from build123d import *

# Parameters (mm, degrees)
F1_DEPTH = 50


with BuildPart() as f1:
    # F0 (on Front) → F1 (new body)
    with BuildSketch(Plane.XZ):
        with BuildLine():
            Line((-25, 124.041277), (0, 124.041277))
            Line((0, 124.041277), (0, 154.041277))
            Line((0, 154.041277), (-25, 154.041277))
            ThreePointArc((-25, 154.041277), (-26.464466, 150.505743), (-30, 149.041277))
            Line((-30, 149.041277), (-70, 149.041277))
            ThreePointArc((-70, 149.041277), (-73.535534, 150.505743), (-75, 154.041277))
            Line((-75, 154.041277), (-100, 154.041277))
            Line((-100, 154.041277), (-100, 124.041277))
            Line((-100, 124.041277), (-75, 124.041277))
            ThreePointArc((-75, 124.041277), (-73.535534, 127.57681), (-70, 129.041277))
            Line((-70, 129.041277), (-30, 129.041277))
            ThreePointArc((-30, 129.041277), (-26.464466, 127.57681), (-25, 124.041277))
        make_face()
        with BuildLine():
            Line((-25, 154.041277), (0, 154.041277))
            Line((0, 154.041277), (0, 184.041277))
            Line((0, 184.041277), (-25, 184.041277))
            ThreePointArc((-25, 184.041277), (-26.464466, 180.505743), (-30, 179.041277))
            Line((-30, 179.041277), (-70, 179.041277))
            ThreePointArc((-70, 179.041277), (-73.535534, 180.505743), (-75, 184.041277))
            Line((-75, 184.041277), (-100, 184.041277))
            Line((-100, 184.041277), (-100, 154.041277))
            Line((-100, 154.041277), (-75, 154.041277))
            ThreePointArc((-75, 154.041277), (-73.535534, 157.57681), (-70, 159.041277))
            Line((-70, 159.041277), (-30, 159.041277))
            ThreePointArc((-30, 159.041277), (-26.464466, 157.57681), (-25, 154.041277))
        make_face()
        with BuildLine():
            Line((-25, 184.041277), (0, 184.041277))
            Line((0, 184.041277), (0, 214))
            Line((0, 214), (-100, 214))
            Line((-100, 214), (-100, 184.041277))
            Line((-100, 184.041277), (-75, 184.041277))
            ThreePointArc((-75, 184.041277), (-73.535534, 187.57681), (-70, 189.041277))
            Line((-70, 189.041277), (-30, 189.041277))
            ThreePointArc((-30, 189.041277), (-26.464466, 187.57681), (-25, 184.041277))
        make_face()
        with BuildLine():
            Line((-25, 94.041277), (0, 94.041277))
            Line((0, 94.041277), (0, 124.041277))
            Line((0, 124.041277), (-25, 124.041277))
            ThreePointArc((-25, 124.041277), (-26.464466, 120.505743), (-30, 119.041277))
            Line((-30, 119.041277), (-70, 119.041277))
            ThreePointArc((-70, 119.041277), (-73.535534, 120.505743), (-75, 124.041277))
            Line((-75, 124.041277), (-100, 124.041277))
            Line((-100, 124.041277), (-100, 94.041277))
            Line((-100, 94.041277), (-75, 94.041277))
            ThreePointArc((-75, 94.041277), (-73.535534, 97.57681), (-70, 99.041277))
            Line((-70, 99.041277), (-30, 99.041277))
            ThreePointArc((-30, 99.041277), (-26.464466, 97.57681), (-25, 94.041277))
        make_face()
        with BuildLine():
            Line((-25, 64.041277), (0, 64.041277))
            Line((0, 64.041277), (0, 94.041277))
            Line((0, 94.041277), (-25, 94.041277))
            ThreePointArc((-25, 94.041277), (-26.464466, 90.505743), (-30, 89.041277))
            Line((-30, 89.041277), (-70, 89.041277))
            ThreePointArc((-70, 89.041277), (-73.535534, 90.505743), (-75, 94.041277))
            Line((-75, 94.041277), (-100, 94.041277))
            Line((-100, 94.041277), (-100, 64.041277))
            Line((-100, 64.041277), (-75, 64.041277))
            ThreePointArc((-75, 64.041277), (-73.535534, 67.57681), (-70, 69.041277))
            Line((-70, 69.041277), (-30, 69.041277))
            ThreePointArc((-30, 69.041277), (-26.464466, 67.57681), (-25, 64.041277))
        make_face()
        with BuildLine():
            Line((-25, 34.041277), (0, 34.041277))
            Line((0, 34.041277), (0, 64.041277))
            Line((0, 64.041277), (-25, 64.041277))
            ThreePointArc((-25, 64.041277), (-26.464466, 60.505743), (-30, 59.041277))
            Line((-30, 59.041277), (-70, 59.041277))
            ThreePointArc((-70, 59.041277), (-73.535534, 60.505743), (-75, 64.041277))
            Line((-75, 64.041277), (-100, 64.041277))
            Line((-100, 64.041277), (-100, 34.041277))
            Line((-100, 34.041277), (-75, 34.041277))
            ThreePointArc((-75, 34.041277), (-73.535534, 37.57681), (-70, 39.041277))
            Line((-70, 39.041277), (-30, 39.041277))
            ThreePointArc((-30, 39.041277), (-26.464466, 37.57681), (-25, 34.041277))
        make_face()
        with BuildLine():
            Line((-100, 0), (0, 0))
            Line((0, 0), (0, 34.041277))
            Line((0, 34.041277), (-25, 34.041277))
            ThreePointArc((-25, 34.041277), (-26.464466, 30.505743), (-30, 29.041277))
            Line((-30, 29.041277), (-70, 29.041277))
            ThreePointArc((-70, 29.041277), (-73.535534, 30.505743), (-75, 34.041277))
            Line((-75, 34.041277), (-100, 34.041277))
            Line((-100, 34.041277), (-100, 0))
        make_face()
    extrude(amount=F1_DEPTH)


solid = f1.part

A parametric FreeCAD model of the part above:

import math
import FreeCAD as App
import Part
import Sketcher

V = App.Vector


def add_polygon(sketch, points):
    """Adds a closed chain of lines whose ends are joined by coincident constraints."""
    first, n = sketch.GeometryCount, len(points)
    for a, b in zip(points, points[1:] + points[:1]):
        sketch.addGeometry(Part.LineSegment(App.Vector(*a, 0), App.Vector(*b, 0)), False)
    for i in range(n):
        sketch.addConstraint(Sketcher.Constraint("Coincident", first + i, 2, first + (i + 1) % n, 1))

doc = App.newDocument("Part")
body = doc.addObject("PartDesign::Body", "Body")

# Sketch on XZ plane
sketch1 = body.newObject("Sketcher::SketchObject", "Sketch")
sketch1.AttachmentSupport = (doc.getObject("XZ_Plane"), [""])
sketch1.MapMode = "FlatFace"
add_polygon(sketch1, [(0, 214), (-100, 214), (-100, 0), (0, 0)])  # lines 0-3
sketch1.addGeometry(Part.ArcOfCircle(Part.Circle(V(-70, 34, 0), V(0, 0, 1), 5), math.radians(90), math.radians(180)), False)  # 4
sketch1.addGeometry(Part.LineSegment(V(-70, 39, 0), V(-30, 39, 0)), False)  # 5
sketch1.addGeometry(Part.ArcOfCircle(Part.Circle(V(-30, 34, 0), V(0, 0, 1), 5), math.radians(0), math.radians(90)), False)  # 6
sketch1.addGeometry(Part.ArcOfCircle(Part.Circle(V(-30, 34, 0), V(0, 0, 1), 5), math.radians(-90), math.radians(0)), False)  # 7
sketch1.addGeometry(Part.LineSegment(V(-30, 29, 0), V(-70, 29, 0)), False)  # 8
sketch1.addGeometry(Part.ArcOfCircle(Part.Circle(V(-70, 34, 0), V(0, 0, 1), 5), math.radians(180), math.radians(270)), False)  # 9
sketch1.addGeometry(Part.ArcOfCircle(Part.Circle(V(-70, 64, 0), V(0, 0, 1), 5), math.radians(90), math.radians(180)), False)  # 10
sketch1.addGeometry(Part.LineSegment(V(-70, 69, 0), V(-30, 69, 0)), False)  # 11
sketch1.addGeometry(Part.ArcOfCircle(Part.Circle(V(-30, 64, 0), V(0, 0, 1), 5), math.radians(0), math.radians(90)), False)  # 12
sketch1.addGeometry(Part.ArcOfCircle(Part.Circle(V(-30, 64, 0), V(0, 0, 1), 5), math.radians(-90), math.radians(0)), False)  # 13
sketch1.addGeometry(Part.LineSegment(V(-30, 59, 0), V(-70, 59, 0)), False)  # 14
sketch1.addGeometry(Part.ArcOfCircle(Part.Circle(V(-70, 64, 0), V(0, 0, 1), 5), math.radians(180), math.radians(270)), False)  # 15
sketch1.addGeometry(Part.ArcOfCircle(Part.Circle(V(-70, 94, 0), V(0, 0, 1), 5), math.radians(90), math.radians(180)), False)  # 16
sketch1.addGeometry(Part.LineSegment(V(-70, 99, 0), V(-30, 99, 0)), False)  # 17
sketch1.addGeometry(Part.ArcOfCircle(Part.Circle(V(-30, 94, 0), V(0, 0, 1), 5), math.radians(0), math.radians(90)), False)  # 18
sketch1.addGeometry(Part.ArcOfCircle(Part.Circle(V(-30, 94, 0), V(0, 0, 1), 5), math.radians(-90), math.radians(0)), False)  # 19
sketch1.addGeometry(Part.LineSegment(V(-30, 89, 0), V(-70, 89, 0)), False)  # 20
sketch1.addGeometry(Part.ArcOfCircle(Part.Circle(V(-70, 94, 0), V(0, 0, 1), 5), math.radians(180), math.radians(270)), False)  # 21
sketch1.addGeometry(Part.ArcOfCircle(Part.Circle(V(-70, 124, 0), V(0, 0, 1), 5), math.radians(90), math.radians(180)), False)  # 22
sketch1.addGeometry(Part.LineSegment(V(-70, 129, 0), V(-30, 129, 0)), False)  # 23
sketch1.addGeometry(Part.ArcOfCircle(Part.Circle(V(-30, 124, 0), V(0, 0, 1), 5), math.radians(0), math.radians(90)), False)  # 24
sketch1.addGeometry(Part.ArcOfCircle(Part.Circle(V(-30, 124, 0), V(0, 0, 1), 5), math.radians(-90), math.radians(0)), False)  # 25
sketch1.addGeometry(Part.LineSegment(V(-30, 119, 0), V(-70, 119, 0)), False)  # 26
sketch1.addGeometry(Part.ArcOfCircle(Part.Circle(V(-70, 124, 0), V(0, 0, 1), 5), math.radians(180), math.radians(270)), False)  # 27
sketch1.addGeometry(Part.ArcOfCircle(Part.Circle(V(-30, 184, 0), V(0, 0, 1), 5), math.radians(-90), math.radians(0)), False)  # 28
sketch1.addGeometry(Part.LineSegment(V(-30, 179, 0), V(-70, 179, 0)), False)  # 29
sketch1.addGeometry(Part.ArcOfCircle(Part.Circle(V(-70, 184, 0), V(0, 0, 1), 5), math.radians(180), math.radians(270)), False)  # 30
sketch1.addGeometry(Part.ArcOfCircle(Part.Circle(V(-70, 184, 0), V(0, 0, 1), 5), math.radians(90), math.radians(180)), False)  # 31
sketch1.addGeometry(Part.LineSegment(V(-70, 189, 0), V(-30, 189, 0)), False)  # 32
sketch1.addGeometry(Part.ArcOfCircle(Part.Circle(V(-30, 184, 0), V(0, 0, 1), 5), math.radians(0), math.radians(90)), False)  # 33
sketch1.addGeometry(Part.ArcOfCircle(Part.Circle(V(-30, 154, 0), V(0, 0, 1), 5), math.radians(-90), math.radians(0)), False)  # 34
sketch1.addGeometry(Part.LineSegment(V(-30, 149, 0), V(-70, 149, 0)), False)  # 35
sketch1.addGeometry(Part.ArcOfCircle(Part.Circle(V(-70, 154, 0), V(0, 0, 1), 5), math.radians(180), math.radians(270)), False)  # 36
sketch1.addGeometry(Part.ArcOfCircle(Part.Circle(V(-70, 154, 0), V(0, 0, 1), 5), math.radians(90), math.radians(180)), False)  # 37
sketch1.addGeometry(Part.LineSegment(V(-70, 159, 0), V(-30, 159, 0)), False)  # 38
sketch1.addGeometry(Part.ArcOfCircle(Part.Circle(V(-30, 154, 0), V(0, 0, 1), 5), math.radians(0), math.radians(90)), False)  # 39
sketch1.addConstraint(Sketcher.Constraint("Tangent", 4, 1, 5, 1))
sketch1.addConstraint(Sketcher.Constraint("Tangent", 5, 2, 6, 2))
sketch1.addConstraint(Sketcher.Constraint("Tangent", 6, 1, 7, 2))
sketch1.addConstraint(Sketcher.Constraint("Tangent", 7, 1, 8, 1))
sketch1.addConstraint(Sketcher.Constraint("Tangent", 8, 2, 9, 2))
sketch1.addConstraint(Sketcher.Constraint("Tangent", 9, 1, 4, 2))
sketch1.addConstraint(Sketcher.Constraint("Tangent", 10, 1, 11, 1))
sketch1.addConstraint(Sketcher.Constraint("Tangent", 11, 2, 12, 2))
sketch1.addConstraint(Sketcher.Constraint("Tangent", 12, 1, 13, 2))
sketch1.addConstraint(Sketcher.Constraint("Tangent", 13, 1, 14, 1))
sketch1.addConstraint(Sketcher.Constraint("Tangent", 14, 2, 15, 2))
sketch1.addConstraint(Sketcher.Constraint("Tangent", 15, 1, 10, 2))
sketch1.addConstraint(Sketcher.Constraint("Tangent", 16, 1, 17, 1))
sketch1.addConstraint(Sketcher.Constraint("Tangent", 17, 2, 18, 2))
sketch1.addConstraint(Sketcher.Constraint("Tangent", 18, 1, 19, 2))
sketch1.addConstraint(Sketcher.Constraint("Tangent", 19, 1, 20, 1))
sketch1.addConstraint(Sketcher.Constraint("Tangent", 20, 2, 21, 2))
sketch1.addConstraint(Sketcher.Constraint("Tangent", 21, 1, 16, 2))
sketch1.addConstraint(Sketcher.Constraint("Tangent", 22, 1, 23, 1))
sketch1.addConstraint(Sketcher.Constraint("Tangent", 23, 2, 24, 2))
sketch1.addConstraint(Sketcher.Constraint("Tangent", 24, 1, 25, 2))
sketch1.addConstraint(Sketcher.Constraint("Tangent", 25, 1, 26, 1))
sketch1.addConstraint(Sketcher.Constraint("Tangent", 26, 2, 27, 2))
sketch1.addConstraint(Sketcher.Constraint("Tangent", 27, 1, 22, 2))
sketch1.addConstraint(Sketcher.Constraint("Tangent", 28, 1, 29, 1))
sketch1.addConstraint(Sketcher.Constraint("Tangent", 29, 2, 30, 2))
sketch1.addConstraint(Sketcher.Constraint("Tangent", 30, 1, 31, 2))
sketch1.addConstraint(Sketcher.Constraint("Tangent", 31, 1, 32, 1))
sketch1.addConstraint(Sketcher.Constraint("Tangent", 32, 2, 33, 2))
sketch1.addConstraint(Sketcher.Constraint("Tangent", 33, 1, 28, 2))
sketch1.addConstraint(Sketcher.Constraint("Tangent", 34, 1, 35, 1))
sketch1.addConstraint(Sketcher.Constraint("Tangent", 35, 2, 36, 2))
sketch1.addConstraint(Sketcher.Constraint("Tangent", 36, 1, 37, 2))
sketch1.addConstraint(Sketcher.Constraint("Tangent", 37, 1, 38, 1))
sketch1.addConstraint(Sketcher.Constraint("Tangent", 38, 2, 39, 2))
sketch1.addConstraint(Sketcher.Constraint("Tangent", 39, 1, 34, 2))
sketch1.addConstraint(Sketcher.Constraint("Horizontal", 0))
sketch1.addConstraint(Sketcher.Constraint("Vertical", 1))
sketch1.addConstraint(Sketcher.Constraint("Horizontal", 2))
sketch1.addConstraint(Sketcher.Constraint("Vertical", 3))
sketch1.addConstraint(Sketcher.Constraint("Horizontal", 5))
sketch1.addConstraint(Sketcher.Constraint("Horizontal", 8))
sketch1.addConstraint(Sketcher.Constraint("Horizontal", 11))
sketch1.addConstraint(Sketcher.Constraint("Horizontal", 14))
sketch1.addConstraint(Sketcher.Constraint("Horizontal", 17))
sketch1.addConstraint(Sketcher.Constraint("Horizontal", 20))
sketch1.addConstraint(Sketcher.Constraint("Horizontal", 23))
sketch1.addConstraint(Sketcher.Constraint("Horizontal", 26))
sketch1.addConstraint(Sketcher.Constraint("Horizontal", 29))
sketch1.addConstraint(Sketcher.Constraint("Horizontal", 32))
sketch1.addConstraint(Sketcher.Constraint("Horizontal", 35))
sketch1.addConstraint(Sketcher.Constraint("Horizontal", 38))
sketch1.addConstraint(Sketcher.Constraint("Coincident", 2, 2, -1, 1))
sketch1.addConstraint(Sketcher.Constraint("Equal", 4, 6))
sketch1.addConstraint(Sketcher.Constraint("Equal", 6, 7))
sketch1.addConstraint(Sketcher.Constraint("Equal", 9, 10))
sketch1.addConstraint(Sketcher.Constraint("Equal", 10, 12))
sketch1.addConstraint(Sketcher.Constraint("Equal", 12, 13))
sketch1.addConstraint(Sketcher.Constraint("Equal", 15, 16))
sketch1.addConstraint(Sketcher.Constraint("Equal", 16, 18))
sketch1.addConstraint(Sketcher.Constraint("Equal", 18, 19))
sketch1.addConstraint(Sketcher.Constraint("Equal", 21, 22))
sketch1.addConstraint(Sketcher.Constraint("Equal", 22, 24))
sketch1.addConstraint(Sketcher.Constraint("Equal", 24, 25))
sketch1.addConstraint(Sketcher.Constraint("Equal", 27, 28))
sketch1.addConstraint(Sketcher.Constraint("Equal", 28, 30))
sketch1.addConstraint(Sketcher.Constraint("Equal", 30, 31))
sketch1.addConstraint(Sketcher.Constraint("Equal", 33, 34))
sketch1.addConstraint(Sketcher.Constraint("Equal", 34, 36))
sketch1.addConstraint(Sketcher.Constraint("Equal", 36, 37))
sketch1.addConstraint(Sketcher.Constraint("Horizontal", 9, 3, 6, 1))
sketch1.addConstraint(Sketcher.Constraint("Horizontal", 6, 1, 9, 1))
sketch1.addConstraint(Sketcher.Constraint("Horizontal", 15, 3, 12, 1))
sketch1.addConstraint(Sketcher.Constraint("Horizontal", 12, 1, 15, 1))
sketch1.addConstraint(Sketcher.Constraint("Horizontal", 21, 3, 18, 1))
sketch1.addConstraint(Sketcher.Constraint("Horizontal", 18, 1, 21, 1))
sketch1.addConstraint(Sketcher.Constraint("Horizontal", 27, 3, 24, 1))
sketch1.addConstraint(Sketcher.Constraint("Horizontal", 24, 1, 27, 1))
sketch1.addConstraint(Sketcher.Constraint("Horizontal", 33, 3, 30, 1))
sketch1.addConstraint(Sketcher.Constraint("Horizontal", 30, 1, 33, 1))
sketch1.addConstraint(Sketcher.Constraint("Horizontal", 39, 3, 36, 1))
sketch1.addConstraint(Sketcher.Constraint("Horizontal", 36, 1, 39, 1))
sketch1.addConstraint(Sketcher.Constraint("Vertical", 9, 3, 10, 3))
sketch1.addConstraint(Sketcher.Constraint("Vertical", 7, 3, 12, 3))
sketch1.addConstraint(Sketcher.Constraint("Vertical", 15, 3, 16, 3))
sketch1.addConstraint(Sketcher.Constraint("Vertical", 13, 3, 18, 3))
sketch1.addConstraint(Sketcher.Constraint("Vertical", 21, 3, 22, 3))
sketch1.addConstraint(Sketcher.Constraint("Vertical", 19, 3, 24, 3))
sketch1.addConstraint(Sketcher.Constraint("Vertical", 25, 3, 28, 3))
sketch1.addConstraint(Sketcher.Constraint("Vertical", 27, 3, 30, 3))
sketch1.addConstraint(Sketcher.Constraint("Vertical", 33, 3, 34, 3))
sketch1.addConstraint(Sketcher.Constraint("Vertical", 31, 3, 36, 3))
sketch1.addConstraint(Sketcher.Constraint("Radius", 4, 5.000001))
sketch1.addConstraint(Sketcher.Constraint("DistanceX", 0, 2, 0, 1, 100.0))
sketch1.addConstraint(Sketcher.Constraint("DistanceX", 5, 1, 5, 2, 40.0))
sketch1.addConstraint(Sketcher.Constraint("DistanceY", 1, 2, 1, 1, 214.0))
sketch1.addConstraint(Sketcher.Constraint("DistanceX", 4, 3, -1, 1, 69.999999))
sketch1.addConstraint(Sketcher.Constraint("DistanceY", -1, 1, 4, 3, 34.041276))
sketch1.addConstraint(Sketcher.Constraint("DistanceY", -1, 1, 10, 3, 64.041276))
sketch1.addConstraint(Sketcher.Constraint("DistanceY", -1, 1, 16, 3, 94.041276))
sketch1.addConstraint(Sketcher.Constraint("DistanceY", -1, 1, 22, 3, 124.041276))
sketch1.addConstraint(Sketcher.Constraint("DistanceY", -1, 1, 28, 3, 184.041277))
sketch1.addConstraint(Sketcher.Constraint("DistanceY", -1, 1, 34, 3, 154.041277))
pad1 = body.newObject("PartDesign::Pad", "Pad")
pad1.Profile = sketch1
pad1.Length = 50

doc.recompute()
